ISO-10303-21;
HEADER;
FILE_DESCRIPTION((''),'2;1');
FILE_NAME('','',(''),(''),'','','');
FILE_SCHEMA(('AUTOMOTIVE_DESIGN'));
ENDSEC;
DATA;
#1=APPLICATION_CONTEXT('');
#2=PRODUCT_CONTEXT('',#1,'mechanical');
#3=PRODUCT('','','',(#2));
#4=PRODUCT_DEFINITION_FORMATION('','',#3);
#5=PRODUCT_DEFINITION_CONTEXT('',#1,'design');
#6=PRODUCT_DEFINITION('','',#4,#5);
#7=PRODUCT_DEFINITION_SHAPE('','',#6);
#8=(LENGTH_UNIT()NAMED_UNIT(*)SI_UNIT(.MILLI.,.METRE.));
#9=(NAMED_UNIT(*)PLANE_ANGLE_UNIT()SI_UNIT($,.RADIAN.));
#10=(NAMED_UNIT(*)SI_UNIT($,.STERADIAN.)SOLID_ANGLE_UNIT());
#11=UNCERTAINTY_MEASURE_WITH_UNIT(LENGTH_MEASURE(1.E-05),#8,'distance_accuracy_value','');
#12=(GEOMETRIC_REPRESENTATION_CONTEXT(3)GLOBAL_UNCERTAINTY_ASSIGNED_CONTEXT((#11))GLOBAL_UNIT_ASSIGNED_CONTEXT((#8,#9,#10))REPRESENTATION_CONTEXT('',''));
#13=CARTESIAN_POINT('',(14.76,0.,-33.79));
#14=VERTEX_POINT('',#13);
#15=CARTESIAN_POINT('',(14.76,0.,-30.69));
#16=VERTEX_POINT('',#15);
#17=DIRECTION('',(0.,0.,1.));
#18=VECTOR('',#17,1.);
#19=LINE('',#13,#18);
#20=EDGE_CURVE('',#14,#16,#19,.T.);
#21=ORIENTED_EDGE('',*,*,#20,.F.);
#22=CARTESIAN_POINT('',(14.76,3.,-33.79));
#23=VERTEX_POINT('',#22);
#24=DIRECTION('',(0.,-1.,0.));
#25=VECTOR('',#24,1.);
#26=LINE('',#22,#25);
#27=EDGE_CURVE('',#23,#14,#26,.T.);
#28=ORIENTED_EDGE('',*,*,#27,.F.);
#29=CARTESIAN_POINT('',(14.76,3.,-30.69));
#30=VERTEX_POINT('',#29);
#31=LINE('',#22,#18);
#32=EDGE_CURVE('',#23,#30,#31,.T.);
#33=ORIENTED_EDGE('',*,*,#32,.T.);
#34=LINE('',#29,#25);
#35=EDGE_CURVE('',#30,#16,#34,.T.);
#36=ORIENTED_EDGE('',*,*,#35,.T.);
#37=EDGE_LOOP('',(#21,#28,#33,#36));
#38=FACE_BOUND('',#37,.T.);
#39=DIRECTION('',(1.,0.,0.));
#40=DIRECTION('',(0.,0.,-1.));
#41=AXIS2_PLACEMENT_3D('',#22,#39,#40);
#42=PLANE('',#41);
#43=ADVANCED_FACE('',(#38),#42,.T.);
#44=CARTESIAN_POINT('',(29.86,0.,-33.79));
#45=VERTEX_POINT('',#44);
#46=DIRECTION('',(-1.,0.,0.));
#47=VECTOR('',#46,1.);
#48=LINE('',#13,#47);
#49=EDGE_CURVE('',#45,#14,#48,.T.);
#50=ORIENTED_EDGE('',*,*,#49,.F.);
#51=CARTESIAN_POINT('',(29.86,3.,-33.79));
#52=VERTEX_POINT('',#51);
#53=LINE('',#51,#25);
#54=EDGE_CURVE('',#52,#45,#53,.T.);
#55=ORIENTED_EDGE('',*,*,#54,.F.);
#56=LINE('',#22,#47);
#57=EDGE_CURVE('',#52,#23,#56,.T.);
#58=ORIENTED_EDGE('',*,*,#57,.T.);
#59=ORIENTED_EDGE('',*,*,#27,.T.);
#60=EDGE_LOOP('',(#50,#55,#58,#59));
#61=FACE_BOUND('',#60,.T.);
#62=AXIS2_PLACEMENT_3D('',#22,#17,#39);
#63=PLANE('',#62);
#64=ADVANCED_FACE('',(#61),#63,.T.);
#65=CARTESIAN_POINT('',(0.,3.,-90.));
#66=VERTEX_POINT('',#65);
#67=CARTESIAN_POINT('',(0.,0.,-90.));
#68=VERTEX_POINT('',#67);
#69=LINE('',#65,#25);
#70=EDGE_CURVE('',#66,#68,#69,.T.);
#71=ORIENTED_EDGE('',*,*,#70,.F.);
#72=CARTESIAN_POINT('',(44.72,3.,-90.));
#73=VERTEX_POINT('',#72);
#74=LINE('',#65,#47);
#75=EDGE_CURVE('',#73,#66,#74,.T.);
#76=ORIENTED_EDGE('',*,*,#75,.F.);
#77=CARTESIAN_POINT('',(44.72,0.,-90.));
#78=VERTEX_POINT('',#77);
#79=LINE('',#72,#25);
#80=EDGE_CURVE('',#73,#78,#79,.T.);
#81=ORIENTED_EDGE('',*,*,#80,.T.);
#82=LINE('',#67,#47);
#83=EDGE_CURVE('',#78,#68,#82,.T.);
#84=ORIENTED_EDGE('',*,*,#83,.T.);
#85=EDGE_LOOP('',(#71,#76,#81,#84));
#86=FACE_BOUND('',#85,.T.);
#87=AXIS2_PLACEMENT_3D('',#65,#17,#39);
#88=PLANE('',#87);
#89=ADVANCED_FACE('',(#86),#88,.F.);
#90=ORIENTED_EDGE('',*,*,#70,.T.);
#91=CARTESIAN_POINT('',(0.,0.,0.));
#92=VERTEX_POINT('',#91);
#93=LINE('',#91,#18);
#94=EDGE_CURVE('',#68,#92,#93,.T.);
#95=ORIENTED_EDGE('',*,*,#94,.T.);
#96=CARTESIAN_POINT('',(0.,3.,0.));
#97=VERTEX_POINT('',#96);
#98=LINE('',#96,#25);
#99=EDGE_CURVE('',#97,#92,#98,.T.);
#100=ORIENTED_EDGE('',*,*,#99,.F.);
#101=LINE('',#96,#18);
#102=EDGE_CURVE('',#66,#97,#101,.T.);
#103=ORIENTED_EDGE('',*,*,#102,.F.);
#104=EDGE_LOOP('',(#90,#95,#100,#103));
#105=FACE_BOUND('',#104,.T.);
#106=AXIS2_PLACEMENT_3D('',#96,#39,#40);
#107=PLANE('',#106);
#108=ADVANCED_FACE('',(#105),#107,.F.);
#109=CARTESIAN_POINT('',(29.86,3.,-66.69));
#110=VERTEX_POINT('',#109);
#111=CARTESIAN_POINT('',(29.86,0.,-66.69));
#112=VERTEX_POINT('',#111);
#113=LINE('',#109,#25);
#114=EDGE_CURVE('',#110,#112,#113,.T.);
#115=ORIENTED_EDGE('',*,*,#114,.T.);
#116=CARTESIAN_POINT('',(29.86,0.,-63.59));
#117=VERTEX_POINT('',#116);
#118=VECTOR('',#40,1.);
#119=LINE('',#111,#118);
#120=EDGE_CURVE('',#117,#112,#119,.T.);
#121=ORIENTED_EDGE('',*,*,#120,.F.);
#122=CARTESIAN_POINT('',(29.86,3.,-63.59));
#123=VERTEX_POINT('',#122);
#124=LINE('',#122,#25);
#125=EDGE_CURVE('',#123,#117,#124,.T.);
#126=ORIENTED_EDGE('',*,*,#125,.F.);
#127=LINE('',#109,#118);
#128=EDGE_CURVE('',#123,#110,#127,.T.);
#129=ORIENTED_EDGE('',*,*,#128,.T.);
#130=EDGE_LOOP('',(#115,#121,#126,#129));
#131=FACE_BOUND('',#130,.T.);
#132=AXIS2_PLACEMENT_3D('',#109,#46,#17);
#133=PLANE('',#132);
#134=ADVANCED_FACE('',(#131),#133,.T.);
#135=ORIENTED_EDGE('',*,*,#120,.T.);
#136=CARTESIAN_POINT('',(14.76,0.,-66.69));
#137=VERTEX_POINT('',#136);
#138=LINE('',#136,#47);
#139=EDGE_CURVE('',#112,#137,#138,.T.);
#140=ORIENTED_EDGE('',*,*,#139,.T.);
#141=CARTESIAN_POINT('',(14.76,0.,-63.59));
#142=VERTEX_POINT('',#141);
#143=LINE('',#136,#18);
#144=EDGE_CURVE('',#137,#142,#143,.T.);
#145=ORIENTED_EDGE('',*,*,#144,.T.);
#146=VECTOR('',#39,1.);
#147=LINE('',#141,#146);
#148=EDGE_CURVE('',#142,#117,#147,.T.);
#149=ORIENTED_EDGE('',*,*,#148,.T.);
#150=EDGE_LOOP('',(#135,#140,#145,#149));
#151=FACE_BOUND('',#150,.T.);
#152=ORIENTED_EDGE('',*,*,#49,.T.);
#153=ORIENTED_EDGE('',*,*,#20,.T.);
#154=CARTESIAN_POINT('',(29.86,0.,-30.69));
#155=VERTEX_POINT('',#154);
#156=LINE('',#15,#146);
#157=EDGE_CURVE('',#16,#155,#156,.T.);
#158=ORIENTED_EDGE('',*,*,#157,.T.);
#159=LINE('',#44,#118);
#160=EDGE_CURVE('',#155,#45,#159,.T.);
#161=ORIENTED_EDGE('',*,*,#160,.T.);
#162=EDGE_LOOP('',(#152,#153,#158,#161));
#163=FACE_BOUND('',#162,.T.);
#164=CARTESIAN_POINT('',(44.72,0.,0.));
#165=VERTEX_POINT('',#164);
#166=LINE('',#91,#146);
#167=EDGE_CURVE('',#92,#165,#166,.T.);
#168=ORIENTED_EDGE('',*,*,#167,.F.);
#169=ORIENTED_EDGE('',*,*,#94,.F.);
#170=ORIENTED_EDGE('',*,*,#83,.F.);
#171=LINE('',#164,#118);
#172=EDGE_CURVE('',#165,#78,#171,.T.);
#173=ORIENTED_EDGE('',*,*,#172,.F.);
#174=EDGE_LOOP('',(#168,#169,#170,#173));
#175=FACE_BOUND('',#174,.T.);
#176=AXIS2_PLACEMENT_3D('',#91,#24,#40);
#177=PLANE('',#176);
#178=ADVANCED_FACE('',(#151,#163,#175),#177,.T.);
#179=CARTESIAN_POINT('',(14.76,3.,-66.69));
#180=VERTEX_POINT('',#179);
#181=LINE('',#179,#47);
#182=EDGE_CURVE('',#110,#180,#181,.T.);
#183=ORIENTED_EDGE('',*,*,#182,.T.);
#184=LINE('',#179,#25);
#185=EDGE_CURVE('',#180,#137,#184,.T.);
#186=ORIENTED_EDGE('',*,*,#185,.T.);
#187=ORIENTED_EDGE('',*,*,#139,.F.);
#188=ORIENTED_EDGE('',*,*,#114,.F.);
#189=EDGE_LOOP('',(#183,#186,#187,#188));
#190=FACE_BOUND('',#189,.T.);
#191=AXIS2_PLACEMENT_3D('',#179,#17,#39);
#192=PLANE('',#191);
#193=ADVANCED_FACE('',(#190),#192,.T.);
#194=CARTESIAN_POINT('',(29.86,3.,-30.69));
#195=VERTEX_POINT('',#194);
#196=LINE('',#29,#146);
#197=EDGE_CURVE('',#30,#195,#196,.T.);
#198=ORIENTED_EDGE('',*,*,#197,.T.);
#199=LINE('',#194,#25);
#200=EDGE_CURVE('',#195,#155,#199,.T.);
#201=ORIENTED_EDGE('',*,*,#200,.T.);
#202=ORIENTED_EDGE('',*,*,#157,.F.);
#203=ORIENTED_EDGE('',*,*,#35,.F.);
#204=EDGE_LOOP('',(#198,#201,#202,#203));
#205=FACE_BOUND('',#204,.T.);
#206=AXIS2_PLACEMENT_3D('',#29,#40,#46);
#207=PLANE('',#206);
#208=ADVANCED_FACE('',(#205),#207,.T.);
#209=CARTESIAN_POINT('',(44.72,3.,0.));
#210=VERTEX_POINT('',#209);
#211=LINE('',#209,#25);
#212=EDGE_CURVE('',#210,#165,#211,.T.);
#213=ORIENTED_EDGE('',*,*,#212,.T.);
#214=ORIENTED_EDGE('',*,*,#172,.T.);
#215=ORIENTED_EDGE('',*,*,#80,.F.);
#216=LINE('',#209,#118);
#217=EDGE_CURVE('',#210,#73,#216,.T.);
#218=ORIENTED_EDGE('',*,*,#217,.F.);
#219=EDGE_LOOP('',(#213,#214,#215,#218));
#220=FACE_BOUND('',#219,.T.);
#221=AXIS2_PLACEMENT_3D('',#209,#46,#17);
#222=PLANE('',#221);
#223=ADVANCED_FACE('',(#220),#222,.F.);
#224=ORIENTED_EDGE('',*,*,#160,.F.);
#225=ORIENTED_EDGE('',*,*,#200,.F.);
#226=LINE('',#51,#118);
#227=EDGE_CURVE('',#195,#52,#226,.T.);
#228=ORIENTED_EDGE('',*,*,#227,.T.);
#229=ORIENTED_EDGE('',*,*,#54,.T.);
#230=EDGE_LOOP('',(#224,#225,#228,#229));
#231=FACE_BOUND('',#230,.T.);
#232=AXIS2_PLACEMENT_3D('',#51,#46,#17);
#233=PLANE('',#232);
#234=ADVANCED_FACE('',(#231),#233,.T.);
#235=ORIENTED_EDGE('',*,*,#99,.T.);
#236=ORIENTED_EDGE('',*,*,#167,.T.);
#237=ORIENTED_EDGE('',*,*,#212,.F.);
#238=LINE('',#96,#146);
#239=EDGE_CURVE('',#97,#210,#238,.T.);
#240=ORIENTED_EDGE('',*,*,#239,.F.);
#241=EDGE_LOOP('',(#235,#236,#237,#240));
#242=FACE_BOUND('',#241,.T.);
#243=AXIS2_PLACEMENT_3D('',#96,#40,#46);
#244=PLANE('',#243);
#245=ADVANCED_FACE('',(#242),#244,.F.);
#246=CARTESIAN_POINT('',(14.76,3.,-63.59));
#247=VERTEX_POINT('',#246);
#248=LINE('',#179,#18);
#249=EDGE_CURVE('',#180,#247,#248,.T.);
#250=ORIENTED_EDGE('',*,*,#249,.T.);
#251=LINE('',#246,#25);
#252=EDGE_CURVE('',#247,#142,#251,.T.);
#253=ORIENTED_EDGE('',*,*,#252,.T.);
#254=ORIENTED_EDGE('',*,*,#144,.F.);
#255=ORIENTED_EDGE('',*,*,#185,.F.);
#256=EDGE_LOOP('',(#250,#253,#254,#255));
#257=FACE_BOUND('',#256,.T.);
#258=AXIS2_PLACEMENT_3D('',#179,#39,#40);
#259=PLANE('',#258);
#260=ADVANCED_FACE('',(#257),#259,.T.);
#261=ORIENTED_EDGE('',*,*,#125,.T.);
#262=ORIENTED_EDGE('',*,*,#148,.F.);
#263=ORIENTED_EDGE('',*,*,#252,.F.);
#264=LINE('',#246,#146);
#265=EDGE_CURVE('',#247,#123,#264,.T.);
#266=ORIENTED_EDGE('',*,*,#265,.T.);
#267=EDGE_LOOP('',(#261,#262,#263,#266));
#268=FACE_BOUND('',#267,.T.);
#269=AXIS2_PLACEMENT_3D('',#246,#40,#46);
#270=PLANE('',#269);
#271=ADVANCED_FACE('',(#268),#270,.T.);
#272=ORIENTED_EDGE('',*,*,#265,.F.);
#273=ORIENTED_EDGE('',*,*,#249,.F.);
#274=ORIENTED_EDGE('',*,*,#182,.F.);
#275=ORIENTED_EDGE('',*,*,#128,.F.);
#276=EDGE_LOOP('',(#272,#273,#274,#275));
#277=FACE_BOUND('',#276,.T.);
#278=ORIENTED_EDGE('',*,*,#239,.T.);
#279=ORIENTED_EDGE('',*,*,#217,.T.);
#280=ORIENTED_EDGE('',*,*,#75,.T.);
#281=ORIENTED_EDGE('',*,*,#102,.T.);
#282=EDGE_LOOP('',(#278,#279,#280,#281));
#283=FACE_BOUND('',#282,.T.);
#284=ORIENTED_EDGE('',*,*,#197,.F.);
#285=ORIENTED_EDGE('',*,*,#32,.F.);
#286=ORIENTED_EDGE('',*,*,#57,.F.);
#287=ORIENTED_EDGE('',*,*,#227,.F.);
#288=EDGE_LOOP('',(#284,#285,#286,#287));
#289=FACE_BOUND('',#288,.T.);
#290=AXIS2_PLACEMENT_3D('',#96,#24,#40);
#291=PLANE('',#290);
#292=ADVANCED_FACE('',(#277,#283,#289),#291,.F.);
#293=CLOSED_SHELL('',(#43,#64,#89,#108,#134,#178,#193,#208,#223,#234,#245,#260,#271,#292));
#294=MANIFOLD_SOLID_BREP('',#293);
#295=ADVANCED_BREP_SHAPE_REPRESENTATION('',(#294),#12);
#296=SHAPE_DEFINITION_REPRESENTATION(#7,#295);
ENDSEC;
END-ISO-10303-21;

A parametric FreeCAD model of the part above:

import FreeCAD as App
import Part
import Sketcher
from FreeCAD import Vector
Q = App.Units.Quantity


def add_polygon(sketch, points):
    """Adds a closed chain of lines whose ends are joined by coincident constraints."""
    first, n = sketch.GeometryCount, len(points)
    for a, b in zip(points, points[1:] + points[:1]):
        sketch.addGeometry(Part.LineSegment(App.Vector(*a, 0), App.Vector(*b, 0)), False)
    for i in range(n):
        sketch.addConstraint(Sketcher.Constraint("Coincident", first + i, 2, first + (i + 1) % n, 1))

doc = App.newDocument("Part")
params = doc.addObject("Spreadsheet::Sheet", "Params")
for row, (alias, value) in enumerate([
    ("sketch1_height", "90 mm"),
    ("sketch1_width", "15.1 mm"),
    ("sketch1_height2", "3.1 mm"),
    ("sketch1_width2", "44.72 mm"),
    ("pad1_length", "3 mm"),
], start=1):
    params.set(f"A{row}", alias)
    params.set(f"B{row}", "=" + value)
    params.setAlias(f"B{row}", alias)

body = doc.addObject("PartDesign::Body", "Body")

sketch1 = body.newObject("Sketcher::SketchObject", "Sketch")
sketch1.AttachmentSupport = (doc.getObject("XZ_Plane"), [""])
sketch1.MapMode = "FlatFace"
add_polygon(sketch1, [(0, -90), (0, 0), (44.7, 0), (44.7, -90)])
add_polygon(sketch1, [(29.9, -30.7), (14.8, -30.7), (14.8, -33.8), (29.9, -33.8)])
add_polygon(sketch1, [(29.9, -63.6), (14.8, -63.6), (14.8, -66.7), (29.9, -66.7)])
sketch1.addConstraint([
    Sketcher.Constraint("Vertical", 0),
    Sketcher.Constraint("Horizontal", 1),
    Sketcher.Constraint("Vertical", 2),
    Sketcher.Constraint("Horizontal", 3),
    Sketcher.Constraint("Horizontal", 4),
    Sketcher.Constraint("Vertical", 5),
    Sketcher.Constraint("Horizontal", 6),
    Sketcher.Constraint("Vertical", 7),
    Sketcher.Constraint("Horizontal", 8),
    Sketcher.Constraint("Vertical", 9),
    Sketcher.Constraint("Horizontal", 10),
    Sketcher.Constraint("Vertical", 11),
    Sketcher.Constraint("Coincident", 0, 2, -1, 1),
    Sketcher.Constraint("Vertical", 5, 2, 8, 2),
    Sketcher.Constraint("Vertical", 7, 2, 10, 2),
    Sketcher.Constraint("Equal", 7, 9),
    Sketcher.Constraint("DistanceY", 0, 1, 0, 2, Q("90 mm")),
    Sketcher.Constraint("DistanceX", 4, 2, 4, 1, Q("15.1 mm")),
    Sketcher.Constraint("DistanceY", 5, 2, 5, 1, Q("3.1 mm")),
    Sketcher.Constraint("DistanceY", 9, 2, 4, 2, Q("36 mm")),
    Sketcher.Constraint("DistanceX", 1, 1, 1, 2, Q("44.72 mm")),
    Sketcher.Constraint("DistanceX", -1, 1, 4, 2, Q("14.76 mm")),
    Sketcher.Constraint("DistanceY", 4, 2, -1, 1, Q("30.69 mm")),
])
sketch1.setExpression("Constraints[28]", "Params.sketch1_height")
sketch1.setExpression("Constraints[29]", "Params.sketch1_width")
sketch1.setExpression("Constraints[30]", "Params.sketch1_height2")
sketch1.setExpression("Constraints[32]", "Params.sketch1_width2")
pad1 = body.newObject("PartDesign::Pad", "Pad")
pad1.Profile = sketch1
pad1.setExpression("Length", "Params.pad1_length")
pad1.Reversed = True

doc.recompute()
